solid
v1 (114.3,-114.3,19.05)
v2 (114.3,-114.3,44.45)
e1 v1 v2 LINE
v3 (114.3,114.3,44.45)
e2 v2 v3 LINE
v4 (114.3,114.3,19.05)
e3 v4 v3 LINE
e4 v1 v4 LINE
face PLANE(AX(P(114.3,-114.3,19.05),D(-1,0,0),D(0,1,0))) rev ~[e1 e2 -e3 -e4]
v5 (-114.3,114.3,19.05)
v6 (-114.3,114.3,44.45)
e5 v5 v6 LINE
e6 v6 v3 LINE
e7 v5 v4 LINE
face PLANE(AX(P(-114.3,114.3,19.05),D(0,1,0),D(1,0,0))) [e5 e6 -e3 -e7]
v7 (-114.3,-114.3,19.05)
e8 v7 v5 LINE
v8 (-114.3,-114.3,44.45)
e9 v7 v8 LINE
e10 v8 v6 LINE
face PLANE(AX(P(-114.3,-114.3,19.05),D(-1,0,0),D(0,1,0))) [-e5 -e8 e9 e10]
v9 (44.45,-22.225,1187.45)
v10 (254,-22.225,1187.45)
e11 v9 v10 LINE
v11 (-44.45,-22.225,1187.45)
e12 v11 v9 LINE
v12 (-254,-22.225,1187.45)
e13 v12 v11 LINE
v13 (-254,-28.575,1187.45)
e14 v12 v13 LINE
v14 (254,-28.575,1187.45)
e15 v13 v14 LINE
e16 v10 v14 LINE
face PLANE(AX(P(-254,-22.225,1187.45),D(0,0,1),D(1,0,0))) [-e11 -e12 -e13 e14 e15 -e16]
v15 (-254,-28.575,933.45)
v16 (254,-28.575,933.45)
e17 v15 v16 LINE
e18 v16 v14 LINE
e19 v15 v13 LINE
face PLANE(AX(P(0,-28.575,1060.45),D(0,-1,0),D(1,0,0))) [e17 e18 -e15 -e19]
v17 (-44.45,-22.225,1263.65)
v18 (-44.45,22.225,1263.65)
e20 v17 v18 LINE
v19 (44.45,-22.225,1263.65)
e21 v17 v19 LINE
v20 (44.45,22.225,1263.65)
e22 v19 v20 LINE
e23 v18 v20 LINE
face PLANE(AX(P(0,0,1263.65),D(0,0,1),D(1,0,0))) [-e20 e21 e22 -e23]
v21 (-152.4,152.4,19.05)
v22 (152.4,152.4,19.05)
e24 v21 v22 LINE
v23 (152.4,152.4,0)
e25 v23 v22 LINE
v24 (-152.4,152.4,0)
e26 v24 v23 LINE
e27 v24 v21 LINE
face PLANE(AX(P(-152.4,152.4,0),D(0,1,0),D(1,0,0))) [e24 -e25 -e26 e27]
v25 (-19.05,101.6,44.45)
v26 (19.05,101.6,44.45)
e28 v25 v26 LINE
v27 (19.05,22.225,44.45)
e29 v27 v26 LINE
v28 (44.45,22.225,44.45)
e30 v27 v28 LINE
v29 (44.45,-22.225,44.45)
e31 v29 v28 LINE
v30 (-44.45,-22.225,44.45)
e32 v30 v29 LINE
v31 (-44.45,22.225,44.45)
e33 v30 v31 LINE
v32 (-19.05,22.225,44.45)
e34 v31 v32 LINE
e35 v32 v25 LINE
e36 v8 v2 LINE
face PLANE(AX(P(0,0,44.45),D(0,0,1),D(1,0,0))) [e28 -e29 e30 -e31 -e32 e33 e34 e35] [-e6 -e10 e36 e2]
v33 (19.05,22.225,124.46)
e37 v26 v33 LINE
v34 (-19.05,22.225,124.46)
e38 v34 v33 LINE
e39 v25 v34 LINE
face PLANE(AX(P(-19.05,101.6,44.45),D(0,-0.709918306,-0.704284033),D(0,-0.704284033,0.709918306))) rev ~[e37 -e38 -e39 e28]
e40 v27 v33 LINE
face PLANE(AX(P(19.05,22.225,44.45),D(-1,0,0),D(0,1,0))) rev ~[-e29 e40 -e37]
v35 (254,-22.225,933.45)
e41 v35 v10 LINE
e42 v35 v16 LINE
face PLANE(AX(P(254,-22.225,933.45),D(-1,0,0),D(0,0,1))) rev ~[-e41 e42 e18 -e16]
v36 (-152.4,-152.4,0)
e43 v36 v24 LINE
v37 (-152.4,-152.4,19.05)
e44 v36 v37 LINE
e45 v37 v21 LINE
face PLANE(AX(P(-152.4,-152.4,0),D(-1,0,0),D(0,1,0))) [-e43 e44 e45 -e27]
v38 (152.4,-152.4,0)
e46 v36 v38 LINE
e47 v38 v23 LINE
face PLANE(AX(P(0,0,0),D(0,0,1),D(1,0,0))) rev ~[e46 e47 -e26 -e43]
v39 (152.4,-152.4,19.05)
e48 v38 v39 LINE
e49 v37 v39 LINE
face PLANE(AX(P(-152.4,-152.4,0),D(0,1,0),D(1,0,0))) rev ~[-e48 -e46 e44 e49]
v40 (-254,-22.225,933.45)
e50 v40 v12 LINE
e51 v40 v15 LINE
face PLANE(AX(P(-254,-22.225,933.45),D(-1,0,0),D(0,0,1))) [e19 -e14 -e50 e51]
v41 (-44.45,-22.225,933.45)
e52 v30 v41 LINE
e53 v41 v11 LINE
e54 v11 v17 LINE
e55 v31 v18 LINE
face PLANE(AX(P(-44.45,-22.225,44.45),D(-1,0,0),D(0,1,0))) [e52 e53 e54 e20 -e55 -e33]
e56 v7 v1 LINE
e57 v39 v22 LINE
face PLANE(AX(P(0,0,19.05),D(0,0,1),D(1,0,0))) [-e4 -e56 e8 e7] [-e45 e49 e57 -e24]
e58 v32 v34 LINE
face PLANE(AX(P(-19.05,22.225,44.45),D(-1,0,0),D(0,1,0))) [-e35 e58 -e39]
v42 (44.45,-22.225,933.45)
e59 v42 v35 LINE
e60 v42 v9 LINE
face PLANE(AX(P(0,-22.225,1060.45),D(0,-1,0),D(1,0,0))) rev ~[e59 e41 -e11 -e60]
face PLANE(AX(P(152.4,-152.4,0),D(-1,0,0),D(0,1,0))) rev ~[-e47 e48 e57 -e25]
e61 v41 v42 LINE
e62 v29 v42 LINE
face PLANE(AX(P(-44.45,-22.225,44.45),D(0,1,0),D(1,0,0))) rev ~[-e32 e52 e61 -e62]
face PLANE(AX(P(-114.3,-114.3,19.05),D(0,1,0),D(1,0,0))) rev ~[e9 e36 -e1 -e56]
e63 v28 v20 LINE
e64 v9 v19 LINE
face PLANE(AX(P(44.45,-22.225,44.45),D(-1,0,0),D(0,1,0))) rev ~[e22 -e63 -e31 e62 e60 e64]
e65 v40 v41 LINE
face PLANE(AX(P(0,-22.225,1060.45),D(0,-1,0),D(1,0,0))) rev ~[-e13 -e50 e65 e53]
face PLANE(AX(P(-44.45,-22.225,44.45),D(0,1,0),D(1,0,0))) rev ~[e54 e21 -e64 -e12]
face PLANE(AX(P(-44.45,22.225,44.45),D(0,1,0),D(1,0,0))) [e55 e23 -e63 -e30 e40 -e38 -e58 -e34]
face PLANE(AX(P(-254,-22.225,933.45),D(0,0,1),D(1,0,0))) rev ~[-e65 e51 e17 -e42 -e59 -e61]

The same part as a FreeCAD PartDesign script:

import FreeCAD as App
import Part
import Sketcher
Q = App.Units.Quantity

doc = App.newDocument("Part")
params = doc.addObject("Spreadsheet::Sheet", "Params")
for row, (alias, value) in enumerate([
    ("sketch1_width", "12 in"),
    ("pad1_length", "0.75 in"),
    ("sketch2_width", "9 in"),
    ("pad2_length", "1 in"),
    ("sketch3_width", "3.5 in"),
    ("sketch3_height", "1.75 in"),
    ("pad3_length", "48 in"),
    ("sketch4_width", "1.5 in"),
    ("sketch4_height", "3.125 in"),
    ("pad4_length", "3.15 in"),
    ("sketch5_height", "3.15 in"),
    ("sketch5_width", "3.125 in"),
    ("pocket1_length", "2 in"),
    ("sketch6_width", "20 in"),
    ("sketch6_height", "10 in"),
    ("pad5_length", "0.25 in"),
], start=1):
    params.set(f"A{row}", alias)
    params.set(f"B{row}", "=" + value)
    params.setAlias(f"B{row}", alias)

body = doc.addObject("PartDesign::Body", "Body")

# Sketch on XY plane
sketch1 = body.newObject("Sketcher::SketchObject", "Sketch")
sketch1.AttachmentSupport = (doc.getObject("XY_Plane"), [""])
sketch1.MapMode = "FlatFace"
sketch1.addGeometry([
    Part.LineSegment(App.Vector(-152.4, 152.4, 0), App.Vector(-152.4, -152.4, 0)),
    Part.LineSegment(App.Vector(-152.4, -152.4, 0), App.Vector(152.4, -152.4, 0)),
    Part.LineSegment(App.Vector(152.4, -152.4, 0), App.Vector(152.4, 152.4, 0)),
    Part.LineSegment(App.Vector(152.4, 152.4, 0), App.Vector(-152.4, 152.4, 0)),
], False)
sketch1.addConstraint([
    Sketcher.Constraint("Coincident", 0, 2, 1, 1),
    Sketcher.Constraint("Coincident", 1, 2, 2, 1),
    Sketcher.Constraint("Coincident", 2, 2, 3, 1),
    Sketcher.Constraint("Coincident", 3, 2, 0, 1),
    Sketcher.Constraint("Vertical", 0),
    Sketcher.Constraint("Horizontal", 1),
    Sketcher.Constraint("Vertical", 2),
    Sketcher.Constraint("Horizontal", 3),
    Sketcher.Constraint("Symmetric", 0, 2, 2, 2, -1, 1),
    Sketcher.Constraint("Equal", 3, 0),
    Sketcher.Constraint("DistanceX", 1, 1, 1, 2, Q("12 in")),
])
sketch1.setExpression("Constraints[10]", "Params.sketch1_width")
pad1 = body.newObject("PartDesign::Pad", "Pad")
pad1.Profile = sketch1
pad1.setExpression("Length", "Params.pad1_length")

# Sketch on XY plane
sketch2 = body.newObject("Sketcher::SketchObject", "Sketch001")
sketch2.AttachmentSupport = (doc.getObject("XY_Plane"), [""])
sketch2.MapMode = "FlatFace"
sketch2.AttachmentOffset = App.Placement(App.Vector(0, 0, 0.75 * 25.4), App.Rotation())
sketch2.addGeometry([
    Part.LineSegment(App.Vector(-114.3, 114.3, 0), App.Vector(-114.3, -114.3, 0)),
    Part.LineSegment(App.Vector(-114.3, -114.3, 0), App.Vector(114.3, -114.3, 0)),
    Part.LineSegment(App.Vector(114.3, -114.3, 0), App.Vector(114.3, 114.3, 0)),
    Part.LineSegment(App.Vector(114.3, 114.3, 0), App.Vector(-114.3, 114.3, 0)),
], False)
sketch2.addConstraint([
    Sketcher.Constraint("Coincident", 0, 2, 1, 1),
    Sketcher.Constraint("Coincident", 1, 2, 2, 1),
    Sketcher.Constraint("Coincident", 2, 2, 3, 1),
    Sketcher.Constraint("Coincident", 3, 2, 0, 1),
    Sketcher.Constraint("Vertical", 0),
    Sketcher.Constraint("Horizontal", 1),
    Sketcher.Constraint("Vertical", 2),
    Sketcher.Constraint("Horizontal", 3),
    Sketcher.Constraint("Symmetric", 0, 2, 2, 2, -1, 1),
    Sketcher.Constraint("Equal", 3, 0),
    Sketcher.Constraint("DistanceX", 1, 1, 1, 2, Q("9 in")),
])
sketch2.setExpression("Constraints[10]", "Params.sketch2_width")
pad2 = body.newObject("PartDesign::Pad", "Pad001")
pad2.Profile = sketch2
pad2.setExpression("Length", "Params.pad2_length")

# Sketch on XY plane
sketch3 = body.newObject("Sketcher::SketchObject", "Sketch002")
sketch3.AttachmentSupport = (doc.getObject("XY_Plane"), [""])
sketch3.MapMode = "FlatFace"
sketch3.AttachmentOffset = App.Placement(App.Vector(0, 0, 1.75 * 25.4), App.Rotation())
sketch3.addGeometry([
    Part.LineSegment(App.Vector(-44.45, 22.225, 0), App.Vector(-44.45, -22.225, 0)),
    Part.LineSegment(App.Vector(-44.45, -22.225, 0), App.Vector(44.45, -22.225, 0)),
    Part.LineSegment(App.Vector(44.45, -22.225, 0), App.Vector(44.45, 22.225, 0)),
    Part.LineSegment(App.Vector(44.45, 22.225, 0), App.Vector(-44.45, 22.225, 0)),
], False)
sketch3.addConstraint([
    Sketcher.Constraint("Coincident", 0, 2, 1, 1),
    Sketcher.Constraint("Coincident", 1, 2, 2, 1),
    Sketcher.Constraint("Coincident", 2, 2, 3, 1),
    Sketcher.Constraint("Coincident", 3, 2, 0, 1),
    Sketcher.Constraint("Vertical", 0),
    Sketcher.Constraint("Horizontal", 1),
    Sketcher.Constraint("Vertical", 2),
    Sketcher.Constraint("Horizontal", 3),
    Sketcher.Constraint("Symmetric", 0, 2, 2, 2, -1, 1),
    Sketcher.Constraint("DistanceX", 1, 1, 1, 2, Q("3.5 in")),
    Sketcher.Constraint("DistanceY", 0, 2, 0, 1, Q("1.75 in")),
])
sketch3.setExpression("Constraints[9]", "Params.sketch3_width")
sketch3.setExpression("Constraints[10]", "Params.sketch3_height")
pad3 = body.newObject("PartDesign::Pad", "Pad002")
pad3.Profile = sketch3
pad3.setExpression("Length", "Params.pad3_length")

# Sketch on XY plane
sketch4 = body.newObject("Sketcher::SketchObject", "Sketch003")
sketch4.AttachmentSupport = (doc.getObject("XY_Plane"), [""])
sketch4.MapMode = "FlatFace"
sketch4.AttachmentOffset = App.Placement(App.Vector(0, 0, 1.75 * 25.4), App.Rotation())
sketch4.addGeometry([
    Part.LineSegment(App.Vector(-19.05, 101.6, 0), App.Vector(-19.05, 22.225, 0)),
    Part.LineSegment(App.Vector(-19.05, 22.225, 0), App.Vector(19.05, 22.225, 0)),
    Part.LineSegment(App.Vector(19.05, 22.225, 0), App.Vector(19.05, 101.6, 0)),
    Part.LineSegment(App.Vector(19.05, 101.6, 0), App.Vector(-19.05, 101.6, 0)),
], False)
sketch4.addConstraint([
    Sketcher.Constraint("Coincident", 0, 2, 1, 1),
    Sketcher.Constraint("Coincident", 1, 2, 2, 1),
    Sketcher.Constraint("Coincident", 2, 2, 3, 1),
    Sketcher.Constraint("Coincident", 3, 2, 0, 1),
    Sketcher.Constraint("Vertical", 0),
    Sketcher.Constraint("Horizontal", 1),
    Sketcher.Constraint("Vertical", 2),
    Sketcher.Constraint("Horizontal", 3),
    Sketcher.Constraint("DistanceX", 1, 1, 1, 2, Q("1.5 in")),
    Sketcher.Constraint("DistanceY", -1, 1, 2, 2, Q("4 in")),
    Sketcher.Constraint("DistanceY", 0, 2, 0, 1, Q("3.125 in")),
    Sketcher.Constraint("DistanceX", 0, 2, -1, 1, Q("0.75 in")),
])
sketch4.setExpression("Constraints[8]", "Params.sketch4_width")
sketch4.setExpression("Constraints[10]", "Params.sketch4_height")
pad4 = body.newObject("PartDesign::Pad", "Pad003")
pad4.Profile = sketch4
pad4.setExpression("Length", "Params.pad4_length")

# Sketch on YZ plane
sketch5 = body.newObject("Sketcher::SketchObject", "Sketch004")
sketch5.AttachmentSupport = (doc.getObject("YZ_Plane"), [""])
sketch5.MapMode = "FlatFace"
sketch5.AttachmentOffset = App.Placement(App.Vector(0, 0, -0.75 * 25.4), App.Rotation())
sketch5.addGeometry([
    Part.LineSegment(App.Vector(101.6, 124.46, 0), App.Vector(101.6, 44.45, 0)),
    Part.LineSegment(App.Vector(101.6, 44.45, 0), App.Vector(22.225, 124.46, 0)),
    Part.LineSegment(App.Vector(22.225, 124.46, 0), App.Vector(101.6, 124.46, 0)),
], False)
sketch5.addConstraint([
    Sketcher.Constraint("Coincident", 0, 2, 1, 1),
    Sketcher.Constraint("Coincident", 1, 2, 2, 1),
    Sketcher.Constraint("Coincident", 2, 2, 0, 1),
    Sketcher.Constraint("Vertical", 0),
    Sketcher.Constraint("Horizontal", 2),
    Sketcher.Constraint("DistanceX", -1, 1, 0, 2, Q("4 in")),
    Sketcher.Constraint("DistanceY", 0, 2, 0, 1, Q("3.15 in")),
    Sketcher.Constraint("DistanceY", -1, 1, 1, 2, Q("4.9 in")),
    Sketcher.Constraint("DistanceX", 2, 1, 2, 2, Q("3.125 in")),
])
sketch5.setExpression("Constraints[6]", "Params.sketch5_height")
sketch5.setExpression("Constraints[8]", "Params.sketch5_width")
pocket1 = body.newObject("PartDesign::Pocket", "Pocket")
pocket1.Profile = sketch5
pocket1.setExpression("Length", "Params.pocket1_length")
pocket1.Reversed = True

# Sketch on XZ plane
sketch6 = body.newObject("Sketcher::SketchObject", "Sketch005")
sketch6.AttachmentSupport = (doc.getObject("XZ_Plane"), [""])
sketch6.MapMode = "FlatFace"
sketch6.AttachmentOffset = App.Placement(App.Vector(0, 0, 0.875 * 25.4), App.Rotation())
sketch6.addGeometry([
    Part.LineSegment(App.Vector(-254, 1187.45, 0), App.Vector(-254, 933.45, 0)),
    Part.LineSegment(App.Vector(-254, 933.45, 0), App.Vector(254, 933.45, 0)),
    Part.LineSegment(App.Vector(254, 933.45, 0), App.Vector(254, 1187.45, 0)),
    Part.LineSegment(App.Vector(254, 1187.45, 0), App.Vector(-254, 1187.45, 0)),
], False)
sketch6.addConstraint([
    Sketcher.Constraint("Coincident", 0, 2, 1, 1),
    Sketcher.Constraint("Coincident", 1, 2, 2, 1),
    Sketcher.Constraint("Coincident", 2, 2, 3, 1),
    Sketcher.Constraint("Coincident", 3, 2, 0, 1),
    Sketcher.Constraint("Vertical", 0),
    Sketcher.Constraint("Horizontal", 1),
    Sketcher.Constraint("Vertical", 2),
    Sketcher.Constraint("Horizontal", 3),
    Sketcher.Constraint("DistanceX", 1, 1, 1, 2, Q("20 in")),
    Sketcher.Constraint("DistanceY", 0, 2, 0, 1, Q("10 in")),
    Sketcher.Constraint("DistanceX", 0, 2, -1, 1, Q("10 in")),
    Sketcher.Constraint("DistanceY", -1, 1, 0, 2, Q("36.75 in")),
])
sketch6.setExpression("Constraints[8]", "Params.sketch6_width")
sketch6.setExpression("Constraints[9]", "Params.sketch6_height")
pad5 = body.newObject("PartDesign::Pad", "Pad004")
pad5.Profile = sketch6
pad5.setExpression("Length", "Params.pad5_length")

doc.recompute()
